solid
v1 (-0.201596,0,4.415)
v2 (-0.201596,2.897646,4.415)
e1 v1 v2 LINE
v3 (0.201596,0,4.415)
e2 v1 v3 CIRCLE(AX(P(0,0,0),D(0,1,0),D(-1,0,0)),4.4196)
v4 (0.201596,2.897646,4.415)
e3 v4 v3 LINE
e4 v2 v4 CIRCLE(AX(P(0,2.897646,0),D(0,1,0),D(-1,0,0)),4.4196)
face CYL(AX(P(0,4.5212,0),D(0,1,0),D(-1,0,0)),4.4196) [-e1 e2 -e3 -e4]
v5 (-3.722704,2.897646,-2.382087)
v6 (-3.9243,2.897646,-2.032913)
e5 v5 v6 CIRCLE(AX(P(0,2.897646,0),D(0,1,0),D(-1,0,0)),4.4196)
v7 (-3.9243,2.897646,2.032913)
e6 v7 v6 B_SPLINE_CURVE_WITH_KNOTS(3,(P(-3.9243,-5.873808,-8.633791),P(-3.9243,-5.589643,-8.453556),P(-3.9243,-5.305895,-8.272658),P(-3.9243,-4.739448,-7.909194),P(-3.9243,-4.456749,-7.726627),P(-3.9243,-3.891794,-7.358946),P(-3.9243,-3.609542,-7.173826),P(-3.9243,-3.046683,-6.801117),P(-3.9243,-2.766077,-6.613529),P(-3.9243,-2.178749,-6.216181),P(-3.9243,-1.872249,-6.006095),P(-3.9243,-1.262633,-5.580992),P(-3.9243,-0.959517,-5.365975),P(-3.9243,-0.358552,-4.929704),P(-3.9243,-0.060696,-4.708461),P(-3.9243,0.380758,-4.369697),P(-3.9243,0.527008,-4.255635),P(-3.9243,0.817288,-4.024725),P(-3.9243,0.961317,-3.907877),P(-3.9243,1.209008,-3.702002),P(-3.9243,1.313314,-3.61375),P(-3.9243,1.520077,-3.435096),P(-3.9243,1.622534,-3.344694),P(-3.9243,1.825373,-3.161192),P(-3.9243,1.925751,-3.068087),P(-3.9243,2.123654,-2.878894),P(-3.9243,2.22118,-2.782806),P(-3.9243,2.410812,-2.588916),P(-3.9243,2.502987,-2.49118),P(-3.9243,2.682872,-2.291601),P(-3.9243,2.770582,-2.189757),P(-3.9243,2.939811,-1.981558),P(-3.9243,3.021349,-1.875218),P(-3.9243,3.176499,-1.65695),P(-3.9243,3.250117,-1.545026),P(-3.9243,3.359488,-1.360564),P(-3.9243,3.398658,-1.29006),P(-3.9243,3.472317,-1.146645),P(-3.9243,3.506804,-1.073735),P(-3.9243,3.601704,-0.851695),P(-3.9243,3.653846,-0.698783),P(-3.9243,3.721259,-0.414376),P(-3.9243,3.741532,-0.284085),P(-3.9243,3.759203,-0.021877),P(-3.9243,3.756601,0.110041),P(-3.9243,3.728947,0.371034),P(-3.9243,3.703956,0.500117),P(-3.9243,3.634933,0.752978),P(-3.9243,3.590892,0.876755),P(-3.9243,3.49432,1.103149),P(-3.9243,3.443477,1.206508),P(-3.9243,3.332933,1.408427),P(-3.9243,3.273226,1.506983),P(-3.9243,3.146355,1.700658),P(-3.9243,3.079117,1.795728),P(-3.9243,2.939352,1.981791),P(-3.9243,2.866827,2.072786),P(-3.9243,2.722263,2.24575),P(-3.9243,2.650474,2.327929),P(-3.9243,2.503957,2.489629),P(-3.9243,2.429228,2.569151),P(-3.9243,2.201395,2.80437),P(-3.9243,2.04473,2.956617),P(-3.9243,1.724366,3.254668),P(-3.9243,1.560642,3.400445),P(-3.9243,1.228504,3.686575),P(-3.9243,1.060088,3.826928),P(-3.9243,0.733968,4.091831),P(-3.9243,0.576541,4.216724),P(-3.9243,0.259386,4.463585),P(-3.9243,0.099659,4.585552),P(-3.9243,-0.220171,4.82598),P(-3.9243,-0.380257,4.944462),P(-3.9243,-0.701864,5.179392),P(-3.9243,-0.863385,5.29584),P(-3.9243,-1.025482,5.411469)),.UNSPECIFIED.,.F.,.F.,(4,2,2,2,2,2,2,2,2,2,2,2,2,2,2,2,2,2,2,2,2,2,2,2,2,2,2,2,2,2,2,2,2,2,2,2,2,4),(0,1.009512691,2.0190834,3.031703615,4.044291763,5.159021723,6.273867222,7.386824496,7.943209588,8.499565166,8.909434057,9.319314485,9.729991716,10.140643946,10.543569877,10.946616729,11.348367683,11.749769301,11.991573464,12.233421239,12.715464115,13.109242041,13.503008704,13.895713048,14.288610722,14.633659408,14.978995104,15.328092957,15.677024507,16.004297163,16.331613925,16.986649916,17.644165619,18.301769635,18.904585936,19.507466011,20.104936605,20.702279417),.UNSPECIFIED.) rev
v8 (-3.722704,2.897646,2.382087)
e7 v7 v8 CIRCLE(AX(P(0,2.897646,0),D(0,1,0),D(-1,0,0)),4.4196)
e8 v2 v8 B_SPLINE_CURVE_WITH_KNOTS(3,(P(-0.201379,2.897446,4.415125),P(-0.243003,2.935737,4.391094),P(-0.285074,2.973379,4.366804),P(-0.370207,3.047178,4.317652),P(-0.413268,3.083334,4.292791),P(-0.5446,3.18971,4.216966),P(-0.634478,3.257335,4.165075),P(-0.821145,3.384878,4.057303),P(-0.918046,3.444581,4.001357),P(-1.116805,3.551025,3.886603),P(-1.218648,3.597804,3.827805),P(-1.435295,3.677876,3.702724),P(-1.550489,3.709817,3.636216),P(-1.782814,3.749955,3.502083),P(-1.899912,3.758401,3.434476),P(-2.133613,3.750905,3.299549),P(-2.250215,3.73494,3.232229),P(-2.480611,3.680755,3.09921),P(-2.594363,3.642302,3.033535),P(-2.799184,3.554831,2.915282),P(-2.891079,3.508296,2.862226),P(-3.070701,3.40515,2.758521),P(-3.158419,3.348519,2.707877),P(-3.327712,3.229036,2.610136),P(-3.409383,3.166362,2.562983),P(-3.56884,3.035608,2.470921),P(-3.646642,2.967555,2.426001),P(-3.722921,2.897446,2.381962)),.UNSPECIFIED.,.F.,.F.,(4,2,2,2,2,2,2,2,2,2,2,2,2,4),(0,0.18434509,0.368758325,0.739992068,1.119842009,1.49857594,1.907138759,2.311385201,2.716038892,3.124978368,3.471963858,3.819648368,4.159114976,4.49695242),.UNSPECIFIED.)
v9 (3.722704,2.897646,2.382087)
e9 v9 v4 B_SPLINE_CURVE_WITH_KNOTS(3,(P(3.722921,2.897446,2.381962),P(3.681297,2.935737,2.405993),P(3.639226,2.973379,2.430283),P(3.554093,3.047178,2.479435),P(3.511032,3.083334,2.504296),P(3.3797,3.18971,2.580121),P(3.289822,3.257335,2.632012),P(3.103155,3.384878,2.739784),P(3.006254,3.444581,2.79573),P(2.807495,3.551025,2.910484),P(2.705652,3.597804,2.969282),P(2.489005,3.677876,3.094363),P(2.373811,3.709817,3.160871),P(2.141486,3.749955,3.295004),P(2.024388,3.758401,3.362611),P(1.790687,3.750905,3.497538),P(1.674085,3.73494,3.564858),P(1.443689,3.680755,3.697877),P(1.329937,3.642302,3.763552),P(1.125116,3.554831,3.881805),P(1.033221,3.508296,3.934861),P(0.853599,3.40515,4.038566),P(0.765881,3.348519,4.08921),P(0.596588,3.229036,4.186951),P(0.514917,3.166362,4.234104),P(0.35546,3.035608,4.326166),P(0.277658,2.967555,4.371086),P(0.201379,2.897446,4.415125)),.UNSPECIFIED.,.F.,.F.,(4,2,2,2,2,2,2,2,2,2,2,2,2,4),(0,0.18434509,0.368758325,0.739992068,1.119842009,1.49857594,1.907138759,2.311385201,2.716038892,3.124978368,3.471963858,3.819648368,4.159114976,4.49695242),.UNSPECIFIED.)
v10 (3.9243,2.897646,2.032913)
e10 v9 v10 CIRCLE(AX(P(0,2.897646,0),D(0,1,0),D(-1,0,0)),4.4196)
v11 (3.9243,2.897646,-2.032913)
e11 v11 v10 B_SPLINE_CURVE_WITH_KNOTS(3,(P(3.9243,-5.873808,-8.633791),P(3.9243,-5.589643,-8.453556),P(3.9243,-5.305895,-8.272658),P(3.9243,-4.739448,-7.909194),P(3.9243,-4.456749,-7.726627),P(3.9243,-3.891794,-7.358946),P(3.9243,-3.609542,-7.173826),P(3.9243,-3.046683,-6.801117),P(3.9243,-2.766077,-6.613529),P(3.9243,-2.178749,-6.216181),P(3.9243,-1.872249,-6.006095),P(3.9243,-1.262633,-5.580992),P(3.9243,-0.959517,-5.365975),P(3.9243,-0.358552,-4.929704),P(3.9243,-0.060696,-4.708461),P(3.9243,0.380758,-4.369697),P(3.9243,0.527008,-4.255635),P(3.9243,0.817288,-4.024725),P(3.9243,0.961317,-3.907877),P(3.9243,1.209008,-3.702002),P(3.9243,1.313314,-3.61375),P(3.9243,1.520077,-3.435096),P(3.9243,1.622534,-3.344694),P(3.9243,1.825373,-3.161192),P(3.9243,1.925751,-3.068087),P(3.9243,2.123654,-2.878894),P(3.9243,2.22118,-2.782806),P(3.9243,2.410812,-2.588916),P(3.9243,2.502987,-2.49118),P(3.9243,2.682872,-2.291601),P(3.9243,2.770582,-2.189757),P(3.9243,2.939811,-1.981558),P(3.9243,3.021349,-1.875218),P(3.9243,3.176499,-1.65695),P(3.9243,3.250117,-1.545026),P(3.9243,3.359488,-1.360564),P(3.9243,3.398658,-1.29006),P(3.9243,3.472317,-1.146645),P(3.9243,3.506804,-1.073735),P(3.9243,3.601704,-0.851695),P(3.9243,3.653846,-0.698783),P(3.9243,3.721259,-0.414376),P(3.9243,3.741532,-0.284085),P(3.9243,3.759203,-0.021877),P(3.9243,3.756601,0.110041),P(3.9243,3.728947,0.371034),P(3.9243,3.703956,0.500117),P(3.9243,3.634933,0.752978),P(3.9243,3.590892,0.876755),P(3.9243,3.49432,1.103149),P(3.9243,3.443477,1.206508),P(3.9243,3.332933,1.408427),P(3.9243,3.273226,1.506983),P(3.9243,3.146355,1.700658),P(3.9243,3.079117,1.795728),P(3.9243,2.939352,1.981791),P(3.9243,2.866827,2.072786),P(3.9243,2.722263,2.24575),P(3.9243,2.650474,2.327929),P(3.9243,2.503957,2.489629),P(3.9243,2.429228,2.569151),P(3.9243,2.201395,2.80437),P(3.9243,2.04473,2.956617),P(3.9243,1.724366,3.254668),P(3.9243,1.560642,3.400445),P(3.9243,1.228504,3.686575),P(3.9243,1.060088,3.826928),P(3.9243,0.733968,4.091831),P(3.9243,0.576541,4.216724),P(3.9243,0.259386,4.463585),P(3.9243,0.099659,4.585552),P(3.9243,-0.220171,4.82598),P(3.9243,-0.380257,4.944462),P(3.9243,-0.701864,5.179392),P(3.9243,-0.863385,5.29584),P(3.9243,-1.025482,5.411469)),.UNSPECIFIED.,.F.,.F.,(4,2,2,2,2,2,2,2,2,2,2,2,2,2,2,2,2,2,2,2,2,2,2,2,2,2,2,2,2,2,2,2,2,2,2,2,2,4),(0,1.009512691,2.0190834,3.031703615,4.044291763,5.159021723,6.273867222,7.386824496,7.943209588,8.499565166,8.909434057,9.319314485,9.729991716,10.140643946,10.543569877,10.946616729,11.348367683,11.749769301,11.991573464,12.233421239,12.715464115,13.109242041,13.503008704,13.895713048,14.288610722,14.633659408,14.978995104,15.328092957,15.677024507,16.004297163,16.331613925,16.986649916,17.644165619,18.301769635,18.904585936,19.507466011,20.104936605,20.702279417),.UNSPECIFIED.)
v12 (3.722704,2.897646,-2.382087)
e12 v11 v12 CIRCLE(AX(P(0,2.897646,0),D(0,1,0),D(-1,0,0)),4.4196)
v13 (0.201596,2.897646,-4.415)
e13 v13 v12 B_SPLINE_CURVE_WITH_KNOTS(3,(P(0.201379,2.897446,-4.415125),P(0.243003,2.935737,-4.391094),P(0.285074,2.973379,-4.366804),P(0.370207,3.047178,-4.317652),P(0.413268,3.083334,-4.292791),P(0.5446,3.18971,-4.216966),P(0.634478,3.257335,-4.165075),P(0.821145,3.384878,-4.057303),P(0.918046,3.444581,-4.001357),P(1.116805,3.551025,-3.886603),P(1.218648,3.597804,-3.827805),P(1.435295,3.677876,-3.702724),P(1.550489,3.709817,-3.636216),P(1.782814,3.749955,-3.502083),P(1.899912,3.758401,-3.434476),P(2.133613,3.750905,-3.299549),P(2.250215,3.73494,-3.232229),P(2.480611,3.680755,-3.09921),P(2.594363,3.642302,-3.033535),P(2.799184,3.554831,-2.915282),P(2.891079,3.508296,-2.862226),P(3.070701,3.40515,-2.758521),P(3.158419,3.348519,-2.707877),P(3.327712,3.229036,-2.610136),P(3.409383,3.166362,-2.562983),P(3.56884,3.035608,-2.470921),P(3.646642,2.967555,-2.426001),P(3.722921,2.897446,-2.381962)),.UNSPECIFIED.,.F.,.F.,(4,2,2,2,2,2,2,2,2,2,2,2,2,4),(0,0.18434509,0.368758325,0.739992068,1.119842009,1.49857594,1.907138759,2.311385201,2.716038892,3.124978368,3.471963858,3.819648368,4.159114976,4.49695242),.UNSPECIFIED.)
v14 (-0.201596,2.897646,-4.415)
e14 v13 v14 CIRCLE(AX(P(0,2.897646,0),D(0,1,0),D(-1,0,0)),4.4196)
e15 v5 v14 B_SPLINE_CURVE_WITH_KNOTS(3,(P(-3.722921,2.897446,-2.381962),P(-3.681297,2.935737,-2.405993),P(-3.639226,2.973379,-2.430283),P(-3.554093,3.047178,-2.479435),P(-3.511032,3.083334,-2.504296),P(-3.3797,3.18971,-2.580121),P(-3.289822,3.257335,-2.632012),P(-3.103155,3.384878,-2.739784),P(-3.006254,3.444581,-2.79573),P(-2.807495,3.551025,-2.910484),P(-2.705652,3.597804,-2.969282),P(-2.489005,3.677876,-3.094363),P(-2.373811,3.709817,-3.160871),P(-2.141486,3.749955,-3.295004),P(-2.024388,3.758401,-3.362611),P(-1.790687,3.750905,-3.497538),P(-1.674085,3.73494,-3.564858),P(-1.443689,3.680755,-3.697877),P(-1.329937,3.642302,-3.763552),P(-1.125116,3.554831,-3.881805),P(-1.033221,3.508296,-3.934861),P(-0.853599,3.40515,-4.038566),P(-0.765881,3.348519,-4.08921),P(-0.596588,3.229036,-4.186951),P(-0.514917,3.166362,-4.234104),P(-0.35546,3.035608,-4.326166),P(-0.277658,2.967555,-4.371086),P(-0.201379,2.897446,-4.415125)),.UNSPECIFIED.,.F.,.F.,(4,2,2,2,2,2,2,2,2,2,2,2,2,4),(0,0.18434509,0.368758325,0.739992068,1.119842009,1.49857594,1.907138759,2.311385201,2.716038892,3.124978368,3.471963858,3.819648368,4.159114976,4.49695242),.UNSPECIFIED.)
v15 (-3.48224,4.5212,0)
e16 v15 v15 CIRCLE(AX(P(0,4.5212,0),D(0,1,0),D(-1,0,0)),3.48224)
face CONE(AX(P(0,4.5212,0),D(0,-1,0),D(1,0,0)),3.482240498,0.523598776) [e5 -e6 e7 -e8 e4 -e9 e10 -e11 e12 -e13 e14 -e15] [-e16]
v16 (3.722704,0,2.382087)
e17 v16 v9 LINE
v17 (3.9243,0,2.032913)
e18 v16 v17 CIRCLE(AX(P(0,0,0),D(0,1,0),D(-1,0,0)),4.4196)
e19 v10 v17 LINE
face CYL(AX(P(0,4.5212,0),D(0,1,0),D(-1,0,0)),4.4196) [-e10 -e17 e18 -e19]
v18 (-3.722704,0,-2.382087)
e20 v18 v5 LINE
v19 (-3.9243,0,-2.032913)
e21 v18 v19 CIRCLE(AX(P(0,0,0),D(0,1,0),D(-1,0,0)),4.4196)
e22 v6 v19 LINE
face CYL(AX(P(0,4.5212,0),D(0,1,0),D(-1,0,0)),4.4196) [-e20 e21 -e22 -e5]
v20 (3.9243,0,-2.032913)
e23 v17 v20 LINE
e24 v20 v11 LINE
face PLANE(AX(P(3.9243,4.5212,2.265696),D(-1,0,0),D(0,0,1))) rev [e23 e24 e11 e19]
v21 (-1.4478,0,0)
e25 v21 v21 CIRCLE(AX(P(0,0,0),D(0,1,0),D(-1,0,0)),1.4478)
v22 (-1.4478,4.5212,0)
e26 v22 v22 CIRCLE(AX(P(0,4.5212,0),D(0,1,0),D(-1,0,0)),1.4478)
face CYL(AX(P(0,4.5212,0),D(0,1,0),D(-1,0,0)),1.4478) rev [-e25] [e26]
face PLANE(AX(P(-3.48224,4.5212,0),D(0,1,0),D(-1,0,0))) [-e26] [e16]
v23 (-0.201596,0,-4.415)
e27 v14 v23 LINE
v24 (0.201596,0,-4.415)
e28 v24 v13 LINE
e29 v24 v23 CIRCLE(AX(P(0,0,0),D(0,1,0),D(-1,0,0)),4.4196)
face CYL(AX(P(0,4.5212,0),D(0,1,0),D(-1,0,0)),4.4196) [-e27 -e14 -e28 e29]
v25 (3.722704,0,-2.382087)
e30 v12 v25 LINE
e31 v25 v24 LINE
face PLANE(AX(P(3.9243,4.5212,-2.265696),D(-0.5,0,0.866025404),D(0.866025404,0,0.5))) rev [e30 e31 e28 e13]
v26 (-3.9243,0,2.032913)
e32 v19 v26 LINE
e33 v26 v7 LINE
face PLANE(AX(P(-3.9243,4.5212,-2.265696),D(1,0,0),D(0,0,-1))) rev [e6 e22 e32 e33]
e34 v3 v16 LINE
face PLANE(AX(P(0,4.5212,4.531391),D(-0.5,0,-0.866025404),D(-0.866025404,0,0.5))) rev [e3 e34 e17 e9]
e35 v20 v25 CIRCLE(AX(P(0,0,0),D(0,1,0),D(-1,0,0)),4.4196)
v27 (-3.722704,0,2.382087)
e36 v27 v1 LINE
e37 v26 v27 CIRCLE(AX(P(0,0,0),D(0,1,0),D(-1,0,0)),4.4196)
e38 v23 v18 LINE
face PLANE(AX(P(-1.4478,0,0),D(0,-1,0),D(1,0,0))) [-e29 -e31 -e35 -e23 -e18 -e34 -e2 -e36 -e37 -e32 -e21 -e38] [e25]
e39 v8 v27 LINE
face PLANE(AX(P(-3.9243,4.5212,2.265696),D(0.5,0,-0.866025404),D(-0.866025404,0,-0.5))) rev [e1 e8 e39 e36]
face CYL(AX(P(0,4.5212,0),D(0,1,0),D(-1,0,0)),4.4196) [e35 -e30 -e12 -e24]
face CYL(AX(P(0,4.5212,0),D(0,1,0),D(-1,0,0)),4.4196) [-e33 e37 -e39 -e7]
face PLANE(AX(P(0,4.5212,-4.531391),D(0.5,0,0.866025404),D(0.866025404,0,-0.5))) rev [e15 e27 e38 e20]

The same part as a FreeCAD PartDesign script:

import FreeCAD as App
import Part
import Sketcher
from FreeCAD import Vector
Q = App.Units.Quantity


def add_polygon(sketch, points):
    """Adds a closed chain of lines whose ends are joined by coincident constraints."""
    first, n = sketch.GeometryCount, len(points)
    for a, b in zip(points, points[1:] + points[:1]):
        sketch.addGeometry(Part.LineSegment(App.Vector(*a, 0), App.Vector(*b, 0)), False)
    for i in range(n):
        sketch.addConstraint(Sketcher.Constraint("Coincident", first + i, 2, first + (i + 1) % n, 1))

doc = App.newDocument("Part")
params = doc.addObject("Spreadsheet::Sheet", "Params")
for row, (alias, value) in enumerate([
    ("sketch1_width", "0.117 in"),
    ("sketch1_height", "0.178 in"),
    ("revolution_angle", "360 deg"),
], start=1):
    params.set(f"A{row}", alias)
    params.set(f"B{row}", "=" + value)
    params.setAlias(f"B{row}", alias)

body = doc.addObject("PartDesign::Body", "Body")

sketch1 = body.newObject("Sketcher::SketchObject", "Sketch")
sketch1.AttachmentSupport = (doc.getObject("XY_Plane"), [""])
sketch1.MapMode = "FlatFace"
add_polygon(sketch1, [(-4.4196, 0), (-1.4478, 0), (-1.4478, 4.5212), (-3.48224, 4.5212), (-4.4196, 2.897646)])
sketch1.addConstraint([
    Sketcher.Constraint("Horizontal", 0),
    Sketcher.Constraint("Vertical", 1),
    Sketcher.Constraint("Horizontal", 2),
    Sketcher.Constraint("Vertical", 4),
    Sketcher.Constraint("PointOnObject", 0, 2, -1),
    Sketcher.Constraint("Angle", 3, Q("-120 deg")),
    Sketcher.Constraint("DistanceX", 0, 1, 0, 2, Q("0.117 in")),
    Sketcher.Constraint("DistanceY", 1, 1, 1, 2, Q("0.178 in")),
    Sketcher.Constraint("DistanceX", 0, 2, -1, 1, Q("0.057 in")),
    Sketcher.Constraint("DistanceX", 2, 2, 2, 1, 2.03444),
])
sketch1.setExpression("Constraints[11]", "Params.sketch1_width")
sketch1.setExpression("Constraints[12]", "Params.sketch1_height")
revolution = body.newObject("PartDesign::Revolution", "Revolution")
revolution.Profile = sketch1
revolution.ReferenceAxis = (sketch1, ["V_Axis"])
revolution.setExpression("Angle", "Params.revolution_angle")

sketch2 = body.newObject("Sketcher::SketchObject", "Sketch001")
sketch2.AttachmentSupport = (doc.getObject("XZ_Plane"), [""])
sketch2.MapMode = "FlatFace"
sketch2.addGeometry(Part.Circle(Vector(0, 0, 0), Vector(0, 0, 1), 8.336998), False)
add_polygon(sketch2, [(-3.9243, -2.265696), (0, -4.531391), (3.9243, -2.265696), (3.9243, 2.265696), (0, 4.531391), (-3.9243, 2.265696)])
sketch2.addConstraint([
    Sketcher.Constraint("Vertical", 3),
    Sketcher.Constraint("Vertical", 6),
    Sketcher.Constraint("Coincident", 0, 3, -1, 1),
    Sketcher.Constraint("Symmetric", 1, 2, 4, 2, -1, 1),
    Sketcher.Constraint("Symmetric", 2, 2, 5, 2, -1, 1),
    Sketcher.Constraint("PointOnObject", 1, 2, -2),
    Sketcher.Constraint("Parallel", 1, 4),
    Sketcher.Constraint("Horizontal", 3, 2, 5, 2),
    Sketcher.Constraint("Angle", 1, Q("-30 deg")),
    Sketcher.Constraint("DistanceX", 5, 2, 3, 2, Q("0.309 in")),
    Sketcher.Constraint("Diameter", 0, 16.673995),
    Sketcher.Constraint("DistanceY", 3, 1, 3, 2, 4.531391),
])
pocket1 = body.newObject("PartDesign::Pocket", "Pocket")
pocket1.Profile = sketch2
pocket1.Type = "ThroughAll"

doc.recompute()
